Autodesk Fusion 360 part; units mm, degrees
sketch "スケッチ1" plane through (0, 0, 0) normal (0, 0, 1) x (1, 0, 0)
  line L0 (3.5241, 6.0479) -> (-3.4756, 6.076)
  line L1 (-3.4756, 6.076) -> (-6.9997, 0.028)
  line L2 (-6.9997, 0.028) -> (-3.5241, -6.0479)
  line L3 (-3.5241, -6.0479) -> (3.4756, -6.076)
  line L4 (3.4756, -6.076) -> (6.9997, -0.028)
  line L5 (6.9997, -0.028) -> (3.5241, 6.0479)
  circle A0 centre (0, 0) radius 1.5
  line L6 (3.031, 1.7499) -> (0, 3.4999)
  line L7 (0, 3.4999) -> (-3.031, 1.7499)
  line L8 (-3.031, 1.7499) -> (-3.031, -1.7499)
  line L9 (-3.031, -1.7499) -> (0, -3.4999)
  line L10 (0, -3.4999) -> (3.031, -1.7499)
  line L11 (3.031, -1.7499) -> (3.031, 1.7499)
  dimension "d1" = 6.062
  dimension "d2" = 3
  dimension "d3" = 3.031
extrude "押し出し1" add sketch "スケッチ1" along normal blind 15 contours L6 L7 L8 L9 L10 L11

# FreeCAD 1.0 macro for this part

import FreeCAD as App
import Part
import Sketcher
from FreeCAD import Vector
Q = App.Units.Quantity


def add_polygon(sketch, points):
    """Adds a closed chain of lines whose ends are joined by coincident constraints."""
    first, n = sketch.GeometryCount, len(points)
    for a, b in zip(points, points[1:] + points[:1]):
        sketch.addGeometry(Part.LineSegment(App.Vector(*a, 0), App.Vector(*b, 0)), False)
    for i in range(n):
        sketch.addConstraint(Sketcher.Constraint("Coincident", first + i, 2, first + (i + 1) % n, 1))

doc = App.newDocument("Part")
body = doc.addObject("PartDesign::Body", "Body")

# Sketch on XY plane
sketch1 = body.newObject("Sketcher::SketchObject", "Sketch")
sketch1.AttachmentSupport = (doc.getObject("XY_Plane"), [""])
sketch1.MapMode = "FlatFace"
add_polygon(sketch1, [(3, -1.7), (3, 1.7), (0, 3.5), (-3, 1.7), (-3, -1.7), (0, -3.5)])  # lines 0-5
sketch1.addGeometry(Part.Circle(Vector(0, 0, 0), Vector(0, 0, 1), 1.5), False)  # 6
sketch1.addConstraint(Sketcher.Constraint("Vertical", 0))
sketch1.addConstraint(Sketcher.Constraint("Vertical", 3))
sketch1.addConstraint(Sketcher.Constraint("Coincident", 6, 3, -1, 1))
sketch1.addConstraint(Sketcher.Constraint("Symmetric", 0, 2, 3, 2, -1, 1))
sketch1.addConstraint(Sketcher.Constraint("Symmetric", 1, 2, 4, 2, -1, 1))
sketch1.addConstraint(Sketcher.Constraint("PointOnObject", 1, 2, -2))
sketch1.addConstraint(Sketcher.Constraint("Parallel", 2, 5))
sketch1.addConstraint(Sketcher.Constraint("Horizontal", 0, 2, 2, 2))
sketch1.addConstraint(Sketcher.Constraint("Diameter", 6, Q("3 mm")))
sketch1.addConstraint(Sketcher.Constraint("Angle", 1, Q("149.9993 deg")))
sketch1.addConstraint(Sketcher.Constraint("DistanceX", -1, 1, 0, 2, Q("3.031 mm")))
sketch1.addConstraint(Sketcher.Constraint("DistanceY", -1, 1, 1, 2, Q("3.5 mm")))
pad1 = body.newObject("PartDesign::Pad", "Pad")
pad1.Profile = sketch1
pad1.Length = 15

doc.recompute()
